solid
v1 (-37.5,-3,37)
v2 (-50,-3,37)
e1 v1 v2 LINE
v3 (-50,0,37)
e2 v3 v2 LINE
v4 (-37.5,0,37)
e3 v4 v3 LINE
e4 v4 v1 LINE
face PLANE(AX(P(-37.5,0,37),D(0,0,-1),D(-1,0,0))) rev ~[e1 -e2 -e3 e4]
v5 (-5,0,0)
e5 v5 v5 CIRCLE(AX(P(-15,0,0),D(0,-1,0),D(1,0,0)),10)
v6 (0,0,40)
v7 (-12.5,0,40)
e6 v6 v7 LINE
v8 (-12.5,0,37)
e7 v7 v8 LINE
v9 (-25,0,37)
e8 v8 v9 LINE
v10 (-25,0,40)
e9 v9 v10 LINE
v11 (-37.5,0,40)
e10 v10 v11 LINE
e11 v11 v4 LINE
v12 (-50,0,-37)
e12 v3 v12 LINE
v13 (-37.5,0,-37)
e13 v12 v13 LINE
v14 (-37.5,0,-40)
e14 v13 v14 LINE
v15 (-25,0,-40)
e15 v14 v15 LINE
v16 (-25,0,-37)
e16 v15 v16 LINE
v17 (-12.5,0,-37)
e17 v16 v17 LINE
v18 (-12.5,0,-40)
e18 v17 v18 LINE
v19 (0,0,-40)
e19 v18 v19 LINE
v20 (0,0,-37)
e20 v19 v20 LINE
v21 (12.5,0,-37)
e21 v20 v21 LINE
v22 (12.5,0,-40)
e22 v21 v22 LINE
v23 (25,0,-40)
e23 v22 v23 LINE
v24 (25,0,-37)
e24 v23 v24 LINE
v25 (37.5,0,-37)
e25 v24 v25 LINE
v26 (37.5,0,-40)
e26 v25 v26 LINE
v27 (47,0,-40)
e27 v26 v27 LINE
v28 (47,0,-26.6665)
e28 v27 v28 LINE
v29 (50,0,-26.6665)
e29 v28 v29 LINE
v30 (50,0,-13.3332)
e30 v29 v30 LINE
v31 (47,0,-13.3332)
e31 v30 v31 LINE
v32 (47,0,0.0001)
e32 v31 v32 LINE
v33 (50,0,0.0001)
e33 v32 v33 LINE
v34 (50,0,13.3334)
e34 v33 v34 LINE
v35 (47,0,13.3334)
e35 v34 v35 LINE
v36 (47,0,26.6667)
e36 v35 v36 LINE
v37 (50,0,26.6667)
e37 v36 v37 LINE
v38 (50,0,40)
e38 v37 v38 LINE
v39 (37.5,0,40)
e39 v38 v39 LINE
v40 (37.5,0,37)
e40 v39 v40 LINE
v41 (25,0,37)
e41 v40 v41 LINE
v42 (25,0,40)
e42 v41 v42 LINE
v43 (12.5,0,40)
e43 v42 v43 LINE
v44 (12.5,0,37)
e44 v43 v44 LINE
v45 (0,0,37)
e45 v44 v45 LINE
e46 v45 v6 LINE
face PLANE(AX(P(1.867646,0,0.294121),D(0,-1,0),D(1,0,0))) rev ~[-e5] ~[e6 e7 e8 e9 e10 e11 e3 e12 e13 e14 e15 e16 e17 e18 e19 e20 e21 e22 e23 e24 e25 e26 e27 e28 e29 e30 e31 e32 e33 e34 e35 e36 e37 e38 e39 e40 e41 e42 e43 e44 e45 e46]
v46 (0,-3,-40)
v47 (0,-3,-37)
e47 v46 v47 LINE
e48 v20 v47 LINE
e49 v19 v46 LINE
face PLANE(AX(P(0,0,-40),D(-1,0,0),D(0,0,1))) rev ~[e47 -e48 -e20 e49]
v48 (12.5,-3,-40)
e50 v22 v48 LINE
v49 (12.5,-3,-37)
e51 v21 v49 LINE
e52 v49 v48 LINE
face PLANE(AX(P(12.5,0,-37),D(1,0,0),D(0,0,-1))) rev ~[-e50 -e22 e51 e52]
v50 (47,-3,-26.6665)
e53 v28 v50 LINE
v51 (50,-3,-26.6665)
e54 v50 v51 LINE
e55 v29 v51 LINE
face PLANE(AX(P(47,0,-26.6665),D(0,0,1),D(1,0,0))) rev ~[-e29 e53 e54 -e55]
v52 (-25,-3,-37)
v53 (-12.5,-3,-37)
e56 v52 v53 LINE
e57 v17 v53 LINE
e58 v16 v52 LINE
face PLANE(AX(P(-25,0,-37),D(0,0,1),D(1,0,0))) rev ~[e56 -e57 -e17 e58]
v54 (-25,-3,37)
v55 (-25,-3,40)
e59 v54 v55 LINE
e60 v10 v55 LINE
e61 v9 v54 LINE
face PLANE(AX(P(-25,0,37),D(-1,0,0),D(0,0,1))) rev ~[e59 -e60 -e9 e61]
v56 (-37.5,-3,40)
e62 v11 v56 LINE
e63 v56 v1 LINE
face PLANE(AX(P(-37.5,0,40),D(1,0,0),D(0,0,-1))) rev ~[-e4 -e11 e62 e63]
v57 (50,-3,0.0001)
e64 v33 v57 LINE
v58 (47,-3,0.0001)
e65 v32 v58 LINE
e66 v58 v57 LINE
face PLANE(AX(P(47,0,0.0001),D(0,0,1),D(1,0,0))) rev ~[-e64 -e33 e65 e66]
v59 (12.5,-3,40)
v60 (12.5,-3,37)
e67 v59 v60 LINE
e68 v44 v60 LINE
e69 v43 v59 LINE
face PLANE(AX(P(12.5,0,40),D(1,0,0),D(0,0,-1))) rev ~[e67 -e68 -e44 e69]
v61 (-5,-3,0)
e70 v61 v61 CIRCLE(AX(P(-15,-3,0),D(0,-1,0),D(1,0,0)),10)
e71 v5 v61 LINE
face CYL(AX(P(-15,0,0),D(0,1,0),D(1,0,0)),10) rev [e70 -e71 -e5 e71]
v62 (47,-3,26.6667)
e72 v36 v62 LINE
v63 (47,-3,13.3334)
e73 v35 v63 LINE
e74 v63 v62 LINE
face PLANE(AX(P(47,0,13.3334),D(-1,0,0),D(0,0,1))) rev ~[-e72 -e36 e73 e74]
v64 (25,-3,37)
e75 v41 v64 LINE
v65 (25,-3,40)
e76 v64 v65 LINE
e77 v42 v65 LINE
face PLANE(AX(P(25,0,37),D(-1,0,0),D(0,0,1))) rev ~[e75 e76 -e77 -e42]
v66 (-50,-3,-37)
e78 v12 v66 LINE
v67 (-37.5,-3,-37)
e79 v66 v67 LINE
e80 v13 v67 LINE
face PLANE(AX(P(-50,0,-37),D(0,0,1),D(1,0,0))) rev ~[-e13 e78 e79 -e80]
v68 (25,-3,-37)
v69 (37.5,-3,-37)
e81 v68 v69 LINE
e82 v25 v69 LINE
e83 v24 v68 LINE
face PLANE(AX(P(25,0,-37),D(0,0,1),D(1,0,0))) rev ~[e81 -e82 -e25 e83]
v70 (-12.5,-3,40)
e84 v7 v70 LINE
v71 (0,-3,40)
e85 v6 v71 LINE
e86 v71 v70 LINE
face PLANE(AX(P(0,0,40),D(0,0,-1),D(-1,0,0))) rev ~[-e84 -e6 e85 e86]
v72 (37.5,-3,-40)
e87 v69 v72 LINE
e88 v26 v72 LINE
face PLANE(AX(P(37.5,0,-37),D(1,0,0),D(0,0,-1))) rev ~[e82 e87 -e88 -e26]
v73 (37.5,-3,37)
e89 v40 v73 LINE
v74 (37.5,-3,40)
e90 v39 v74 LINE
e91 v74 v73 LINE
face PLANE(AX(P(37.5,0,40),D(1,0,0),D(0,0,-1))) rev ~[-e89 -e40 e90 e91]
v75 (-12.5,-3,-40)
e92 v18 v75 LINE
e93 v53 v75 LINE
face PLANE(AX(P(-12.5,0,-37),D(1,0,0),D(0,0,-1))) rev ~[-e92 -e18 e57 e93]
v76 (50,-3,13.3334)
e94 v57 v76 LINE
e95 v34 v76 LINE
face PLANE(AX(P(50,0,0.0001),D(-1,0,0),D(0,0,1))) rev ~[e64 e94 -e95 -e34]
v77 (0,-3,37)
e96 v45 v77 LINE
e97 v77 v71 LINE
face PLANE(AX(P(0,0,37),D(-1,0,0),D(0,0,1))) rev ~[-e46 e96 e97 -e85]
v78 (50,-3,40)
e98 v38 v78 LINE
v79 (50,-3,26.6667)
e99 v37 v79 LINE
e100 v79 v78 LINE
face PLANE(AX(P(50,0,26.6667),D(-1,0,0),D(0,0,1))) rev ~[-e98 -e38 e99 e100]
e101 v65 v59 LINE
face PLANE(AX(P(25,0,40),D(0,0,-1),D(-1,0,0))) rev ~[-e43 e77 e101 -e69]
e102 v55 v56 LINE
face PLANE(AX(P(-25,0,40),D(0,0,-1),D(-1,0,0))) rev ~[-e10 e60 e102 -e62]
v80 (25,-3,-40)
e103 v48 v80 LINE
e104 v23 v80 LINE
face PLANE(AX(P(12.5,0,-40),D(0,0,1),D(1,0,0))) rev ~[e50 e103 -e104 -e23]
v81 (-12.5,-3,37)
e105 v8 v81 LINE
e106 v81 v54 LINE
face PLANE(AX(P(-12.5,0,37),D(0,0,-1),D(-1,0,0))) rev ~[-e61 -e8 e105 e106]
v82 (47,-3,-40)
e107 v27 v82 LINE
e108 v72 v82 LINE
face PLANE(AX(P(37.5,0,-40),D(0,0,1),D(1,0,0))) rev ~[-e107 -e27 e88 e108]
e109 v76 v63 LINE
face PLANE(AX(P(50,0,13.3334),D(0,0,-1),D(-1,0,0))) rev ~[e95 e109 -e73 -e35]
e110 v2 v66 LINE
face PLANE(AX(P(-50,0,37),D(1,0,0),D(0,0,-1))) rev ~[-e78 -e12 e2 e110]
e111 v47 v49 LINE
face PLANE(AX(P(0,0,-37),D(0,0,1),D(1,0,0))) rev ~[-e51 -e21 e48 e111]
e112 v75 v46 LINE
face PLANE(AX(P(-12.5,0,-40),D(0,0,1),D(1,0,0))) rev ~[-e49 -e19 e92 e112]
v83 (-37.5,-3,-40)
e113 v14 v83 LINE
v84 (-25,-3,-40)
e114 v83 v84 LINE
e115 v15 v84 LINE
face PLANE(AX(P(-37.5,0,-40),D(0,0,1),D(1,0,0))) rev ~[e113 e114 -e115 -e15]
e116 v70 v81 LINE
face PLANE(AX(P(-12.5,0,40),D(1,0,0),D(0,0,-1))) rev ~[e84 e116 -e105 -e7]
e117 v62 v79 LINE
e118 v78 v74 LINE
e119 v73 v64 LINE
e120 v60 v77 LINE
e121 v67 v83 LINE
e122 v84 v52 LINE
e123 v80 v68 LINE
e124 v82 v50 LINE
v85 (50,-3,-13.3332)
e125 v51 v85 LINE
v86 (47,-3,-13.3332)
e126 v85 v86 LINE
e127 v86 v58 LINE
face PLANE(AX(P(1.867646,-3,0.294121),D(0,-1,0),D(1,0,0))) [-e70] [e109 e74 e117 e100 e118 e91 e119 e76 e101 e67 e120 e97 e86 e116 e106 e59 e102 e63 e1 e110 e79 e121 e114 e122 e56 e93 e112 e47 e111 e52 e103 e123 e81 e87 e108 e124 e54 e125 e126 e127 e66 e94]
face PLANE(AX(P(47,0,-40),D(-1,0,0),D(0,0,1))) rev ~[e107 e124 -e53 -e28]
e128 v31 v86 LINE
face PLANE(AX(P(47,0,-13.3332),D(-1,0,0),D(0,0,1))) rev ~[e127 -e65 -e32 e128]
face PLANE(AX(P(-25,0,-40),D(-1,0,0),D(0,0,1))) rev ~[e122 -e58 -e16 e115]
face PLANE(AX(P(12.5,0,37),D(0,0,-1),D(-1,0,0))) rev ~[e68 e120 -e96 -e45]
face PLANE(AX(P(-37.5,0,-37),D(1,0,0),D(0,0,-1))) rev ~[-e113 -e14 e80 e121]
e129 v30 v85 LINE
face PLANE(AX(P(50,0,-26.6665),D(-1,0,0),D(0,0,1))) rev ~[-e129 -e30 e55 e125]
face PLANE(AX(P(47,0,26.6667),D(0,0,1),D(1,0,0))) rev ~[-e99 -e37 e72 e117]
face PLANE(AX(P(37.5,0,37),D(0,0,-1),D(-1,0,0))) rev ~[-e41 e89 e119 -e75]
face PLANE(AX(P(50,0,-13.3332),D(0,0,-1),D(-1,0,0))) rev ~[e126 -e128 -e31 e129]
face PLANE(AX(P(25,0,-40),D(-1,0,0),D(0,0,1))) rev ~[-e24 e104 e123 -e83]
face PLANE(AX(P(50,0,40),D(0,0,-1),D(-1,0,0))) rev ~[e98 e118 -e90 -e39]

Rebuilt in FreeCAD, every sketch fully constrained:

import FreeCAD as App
import Part
import Sketcher

V = App.Vector
Q = App.Units.Quantity


def add_polygon(sketch, points):
    """Adds a closed chain of lines whose ends are joined by coincident constraints."""
    first, n = sketch.GeometryCount, len(points)
    for a, b in zip(points, points[1:] + points[:1]):
        sketch.addGeometry(Part.LineSegment(App.Vector(*a, 0), App.Vector(*b, 0)), False)
    for i in range(n):
        sketch.addConstraint(Sketcher.Constraint("Coincident", first + i, 2, first + (i + 1) % n, 1))

doc = App.newDocument("Part")
body = doc.addObject("PartDesign::Body", "Body")

# Sketch on XZ plane
sketch1 = body.newObject("Sketcher::SketchObject", "Sketch")
sketch1.AttachmentSupport = (doc.getObject("XZ_Plane"), [""])
sketch1.MapMode = "FlatFace"
add_polygon(sketch1, [(37.5, -40), (47, -40), (47, -26.6665), (50, -26.6665), (50, -13.3332), (47, -13.3332), (47, 0.0001), (50, 0.0001), (50, 13.3334), (47, 13.3334), (47, 26.6667), (50, 26.6667), (50, 40), (37.5, 40), (37.5, 37), (25, 37), (25, 40), (12.5, 40), (12.5, 37), (0, 37), (0, 40), (-12.5, 40), (-12.5, 37), (-25, 37), (-25, 40), (-37.5, 40), (-37.5, 37), (-50, 37), (-50, -37), (-37.5, -37), (-37.5, -40), (-25, -40), (-25, -37), (-12.5, -37), (-12.5, -40), (0, -40), (0, -37), (12.5, -37), (12.5, -40), (25, -40), (25, -37), (37.5, -37)])  # lines 0-41
sketch1.addGeometry(Part.Circle(V(-15, 0, 0), V(0, 0, 1), 10), False)  # 42
sketch1.addConstraint(Sketcher.Constraint("Horizontal", 0))
sketch1.addConstraint(Sketcher.Constraint("Vertical", 1))
sketch1.addConstraint(Sketcher.Constraint("Horizontal", 2))
sketch1.addConstraint(Sketcher.Constraint("Vertical", 3))
sketch1.addConstraint(Sketcher.Constraint("Horizontal", 4))
sketch1.addConstraint(Sketcher.Constraint("Vertical", 5))
sketch1.addConstraint(Sketcher.Constraint("Horizontal", 6))
sketch1.addConstraint(Sketcher.Constraint("Vertical", 7))
sketch1.addConstraint(Sketcher.Constraint("Horizontal", 8))
sketch1.addConstraint(Sketcher.Constraint("Vertical", 9))
sketch1.addConstraint(Sketcher.Constraint("Horizontal", 10))
sketch1.addConstraint(Sketcher.Constraint("Vertical", 11))
sketch1.addConstraint(Sketcher.Constraint("Horizontal", 12))
sketch1.addConstraint(Sketcher.Constraint("Vertical", 13))
sketch1.addConstraint(Sketcher.Constraint("Horizontal", 14))
sketch1.addConstraint(Sketcher.Constraint("Vertical", 15))
sketch1.addConstraint(Sketcher.Constraint("Horizontal", 16))
sketch1.addConstraint(Sketcher.Constraint("Vertical", 17))
sketch1.addConstraint(Sketcher.Constraint("Horizontal", 18))
sketch1.addConstraint(Sketcher.Constraint("Vertical", 19))
sketch1.addConstraint(Sketcher.Constraint("Horizontal", 20))
sketch1.addConstraint(Sketcher.Constraint("Vertical", 21))
sketch1.addConstraint(Sketcher.Constraint("Horizontal", 22))
sketch1.addConstraint(Sketcher.Constraint("Vertical", 23))
sketch1.addConstraint(Sketcher.Constraint("Horizontal", 24))
sketch1.addConstraint(Sketcher.Constraint("Vertical", 25))
sketch1.addConstraint(Sketcher.Constraint("Horizontal", 26))
sketch1.addConstraint(Sketcher.Constraint("Vertical", 27))
sketch1.addConstraint(Sketcher.Constraint("Horizontal", 28))
sketch1.addConstraint(Sketcher.Constraint("Vertical", 29))
sketch1.addConstraint(Sketcher.Constraint("Horizontal", 30))
sketch1.addConstraint(Sketcher.Constraint("Vertical", 31))
sketch1.addConstraint(Sketcher.Constraint("Horizontal", 32))
sketch1.addConstraint(Sketcher.Constraint("Vertical", 33))
sketch1.addConstraint(Sketcher.Constraint("Horizontal", 34))
sketch1.addConstraint(Sketcher.Constraint("Vertical", 35))
sketch1.addConstraint(Sketcher.Constraint("Horizontal", 36))
sketch1.addConstraint(Sketcher.Constraint("Vertical", 37))
sketch1.addConstraint(Sketcher.Constraint("Horizontal", 38))
sketch1.addConstraint(Sketcher.Constraint("Vertical", 39))
sketch1.addConstraint(Sketcher.Constraint("Horizontal", 40))
sketch1.addConstraint(Sketcher.Constraint("Vertical", 41))
sketch1.addConstraint(Sketcher.Constraint("Symmetric", 13, 2, 28, 2, -1, 1))
sketch1.addConstraint(Sketcher.Constraint("Symmetric", 15, 2, 30, 2, -1, 1))
sketch1.addConstraint(Sketcher.Constraint("Symmetric", 17, 2, 32, 2, -1, 1))
sketch1.addConstraint(Sketcher.Constraint("Symmetric", 19, 2, 34, 2, -1, 1))
sketch1.addConstraint(Sketcher.Constraint("Symmetric", 21, 2, 36, 2, -1, 1))
sketch1.addConstraint(Sketcher.Constraint("Symmetric", 23, 2, 38, 2, -1, 1))
sketch1.addConstraint(Sketcher.Constraint("Symmetric", 25, 2, 40, 2, -1, 1))
sketch1.addConstraint(Sketcher.Constraint("Symmetric", 16, 2, 20, 2, -2))
sketch1.addConstraint(Sketcher.Constraint("Symmetric", 14, 2, 22, 2, -2))
sketch1.addConstraint(Sketcher.Constraint("Symmetric", 12, 2, 24, 2, -2))
sketch1.addConstraint(Sketcher.Constraint("Symmetric", 18, 2, 35, 2, -1))
sketch1.addConstraint(Sketcher.Constraint("PointOnObject", 42, 3, -1))
sketch1.addConstraint(Sketcher.Constraint("Horizontal", 12, 2, 15, 2))
sketch1.addConstraint(Sketcher.Constraint("Horizontal", 22, 2, 25, 2))
sketch1.addConstraint(Sketcher.Constraint("Horizontal", 0, 2, 29, 2))
sketch1.addConstraint(Sketcher.Constraint("Vertical", 1, 2, 4, 2))
sketch1.addConstraint(Sketcher.Constraint("Vertical", 3, 2, 6, 2))
sketch1.addConstraint(Sketcher.Constraint("Vertical", 5, 2, 8, 2))
sketch1.addConstraint(Sketcher.Constraint("Vertical", 7, 2, 10, 2))
sketch1.addConstraint(Sketcher.Constraint("Equal", 12, 14))
sketch1.addConstraint(Sketcher.Constraint("Equal", 14, 16))
sketch1.addConstraint(Sketcher.Constraint("Equal", 16, 18))
sketch1.addConstraint(Sketcher.Constraint("Equal", 24, 26))
sketch1.addConstraint(Sketcher.Constraint("Equal", 3, 5))
sketch1.addConstraint(Sketcher.Constraint("Equal", 5, 7))
sketch1.addConstraint(Sketcher.Constraint("Equal", 7, 9))
sketch1.addConstraint(Sketcher.Constraint("Equal", 9, 11))
sketch1.addConstraint(Sketcher.Constraint("Equal", 10, 13))
sketch1.addConstraint(Sketcher.Constraint("Diameter", 42, Q("20 mm")))
sketch1.addConstraint(Sketcher.Constraint("DistanceX", 2, 1, 2, 2, Q("3 mm")))
sketch1.addConstraint(Sketcher.Constraint("DistanceY", 27, 2, 27, 1, Q("74 mm")))
sketch1.addConstraint(Sketcher.Constraint("DistanceX", 0, 1, 0, 2, Q("9.5 mm")))
sketch1.addConstraint(Sketcher.Constraint("DistanceX", 42, 3, -1, 1, Q("15 mm")))
sketch1.addConstraint(Sketcher.Constraint("DistanceY", 1, 1, 1, 2, Q("13.3335 mm")))
pad1 = body.newObject("PartDesign::Pad", "Pad")
pad1.Profile = sketch1
pad1.Length = 3

doc.recompute()
